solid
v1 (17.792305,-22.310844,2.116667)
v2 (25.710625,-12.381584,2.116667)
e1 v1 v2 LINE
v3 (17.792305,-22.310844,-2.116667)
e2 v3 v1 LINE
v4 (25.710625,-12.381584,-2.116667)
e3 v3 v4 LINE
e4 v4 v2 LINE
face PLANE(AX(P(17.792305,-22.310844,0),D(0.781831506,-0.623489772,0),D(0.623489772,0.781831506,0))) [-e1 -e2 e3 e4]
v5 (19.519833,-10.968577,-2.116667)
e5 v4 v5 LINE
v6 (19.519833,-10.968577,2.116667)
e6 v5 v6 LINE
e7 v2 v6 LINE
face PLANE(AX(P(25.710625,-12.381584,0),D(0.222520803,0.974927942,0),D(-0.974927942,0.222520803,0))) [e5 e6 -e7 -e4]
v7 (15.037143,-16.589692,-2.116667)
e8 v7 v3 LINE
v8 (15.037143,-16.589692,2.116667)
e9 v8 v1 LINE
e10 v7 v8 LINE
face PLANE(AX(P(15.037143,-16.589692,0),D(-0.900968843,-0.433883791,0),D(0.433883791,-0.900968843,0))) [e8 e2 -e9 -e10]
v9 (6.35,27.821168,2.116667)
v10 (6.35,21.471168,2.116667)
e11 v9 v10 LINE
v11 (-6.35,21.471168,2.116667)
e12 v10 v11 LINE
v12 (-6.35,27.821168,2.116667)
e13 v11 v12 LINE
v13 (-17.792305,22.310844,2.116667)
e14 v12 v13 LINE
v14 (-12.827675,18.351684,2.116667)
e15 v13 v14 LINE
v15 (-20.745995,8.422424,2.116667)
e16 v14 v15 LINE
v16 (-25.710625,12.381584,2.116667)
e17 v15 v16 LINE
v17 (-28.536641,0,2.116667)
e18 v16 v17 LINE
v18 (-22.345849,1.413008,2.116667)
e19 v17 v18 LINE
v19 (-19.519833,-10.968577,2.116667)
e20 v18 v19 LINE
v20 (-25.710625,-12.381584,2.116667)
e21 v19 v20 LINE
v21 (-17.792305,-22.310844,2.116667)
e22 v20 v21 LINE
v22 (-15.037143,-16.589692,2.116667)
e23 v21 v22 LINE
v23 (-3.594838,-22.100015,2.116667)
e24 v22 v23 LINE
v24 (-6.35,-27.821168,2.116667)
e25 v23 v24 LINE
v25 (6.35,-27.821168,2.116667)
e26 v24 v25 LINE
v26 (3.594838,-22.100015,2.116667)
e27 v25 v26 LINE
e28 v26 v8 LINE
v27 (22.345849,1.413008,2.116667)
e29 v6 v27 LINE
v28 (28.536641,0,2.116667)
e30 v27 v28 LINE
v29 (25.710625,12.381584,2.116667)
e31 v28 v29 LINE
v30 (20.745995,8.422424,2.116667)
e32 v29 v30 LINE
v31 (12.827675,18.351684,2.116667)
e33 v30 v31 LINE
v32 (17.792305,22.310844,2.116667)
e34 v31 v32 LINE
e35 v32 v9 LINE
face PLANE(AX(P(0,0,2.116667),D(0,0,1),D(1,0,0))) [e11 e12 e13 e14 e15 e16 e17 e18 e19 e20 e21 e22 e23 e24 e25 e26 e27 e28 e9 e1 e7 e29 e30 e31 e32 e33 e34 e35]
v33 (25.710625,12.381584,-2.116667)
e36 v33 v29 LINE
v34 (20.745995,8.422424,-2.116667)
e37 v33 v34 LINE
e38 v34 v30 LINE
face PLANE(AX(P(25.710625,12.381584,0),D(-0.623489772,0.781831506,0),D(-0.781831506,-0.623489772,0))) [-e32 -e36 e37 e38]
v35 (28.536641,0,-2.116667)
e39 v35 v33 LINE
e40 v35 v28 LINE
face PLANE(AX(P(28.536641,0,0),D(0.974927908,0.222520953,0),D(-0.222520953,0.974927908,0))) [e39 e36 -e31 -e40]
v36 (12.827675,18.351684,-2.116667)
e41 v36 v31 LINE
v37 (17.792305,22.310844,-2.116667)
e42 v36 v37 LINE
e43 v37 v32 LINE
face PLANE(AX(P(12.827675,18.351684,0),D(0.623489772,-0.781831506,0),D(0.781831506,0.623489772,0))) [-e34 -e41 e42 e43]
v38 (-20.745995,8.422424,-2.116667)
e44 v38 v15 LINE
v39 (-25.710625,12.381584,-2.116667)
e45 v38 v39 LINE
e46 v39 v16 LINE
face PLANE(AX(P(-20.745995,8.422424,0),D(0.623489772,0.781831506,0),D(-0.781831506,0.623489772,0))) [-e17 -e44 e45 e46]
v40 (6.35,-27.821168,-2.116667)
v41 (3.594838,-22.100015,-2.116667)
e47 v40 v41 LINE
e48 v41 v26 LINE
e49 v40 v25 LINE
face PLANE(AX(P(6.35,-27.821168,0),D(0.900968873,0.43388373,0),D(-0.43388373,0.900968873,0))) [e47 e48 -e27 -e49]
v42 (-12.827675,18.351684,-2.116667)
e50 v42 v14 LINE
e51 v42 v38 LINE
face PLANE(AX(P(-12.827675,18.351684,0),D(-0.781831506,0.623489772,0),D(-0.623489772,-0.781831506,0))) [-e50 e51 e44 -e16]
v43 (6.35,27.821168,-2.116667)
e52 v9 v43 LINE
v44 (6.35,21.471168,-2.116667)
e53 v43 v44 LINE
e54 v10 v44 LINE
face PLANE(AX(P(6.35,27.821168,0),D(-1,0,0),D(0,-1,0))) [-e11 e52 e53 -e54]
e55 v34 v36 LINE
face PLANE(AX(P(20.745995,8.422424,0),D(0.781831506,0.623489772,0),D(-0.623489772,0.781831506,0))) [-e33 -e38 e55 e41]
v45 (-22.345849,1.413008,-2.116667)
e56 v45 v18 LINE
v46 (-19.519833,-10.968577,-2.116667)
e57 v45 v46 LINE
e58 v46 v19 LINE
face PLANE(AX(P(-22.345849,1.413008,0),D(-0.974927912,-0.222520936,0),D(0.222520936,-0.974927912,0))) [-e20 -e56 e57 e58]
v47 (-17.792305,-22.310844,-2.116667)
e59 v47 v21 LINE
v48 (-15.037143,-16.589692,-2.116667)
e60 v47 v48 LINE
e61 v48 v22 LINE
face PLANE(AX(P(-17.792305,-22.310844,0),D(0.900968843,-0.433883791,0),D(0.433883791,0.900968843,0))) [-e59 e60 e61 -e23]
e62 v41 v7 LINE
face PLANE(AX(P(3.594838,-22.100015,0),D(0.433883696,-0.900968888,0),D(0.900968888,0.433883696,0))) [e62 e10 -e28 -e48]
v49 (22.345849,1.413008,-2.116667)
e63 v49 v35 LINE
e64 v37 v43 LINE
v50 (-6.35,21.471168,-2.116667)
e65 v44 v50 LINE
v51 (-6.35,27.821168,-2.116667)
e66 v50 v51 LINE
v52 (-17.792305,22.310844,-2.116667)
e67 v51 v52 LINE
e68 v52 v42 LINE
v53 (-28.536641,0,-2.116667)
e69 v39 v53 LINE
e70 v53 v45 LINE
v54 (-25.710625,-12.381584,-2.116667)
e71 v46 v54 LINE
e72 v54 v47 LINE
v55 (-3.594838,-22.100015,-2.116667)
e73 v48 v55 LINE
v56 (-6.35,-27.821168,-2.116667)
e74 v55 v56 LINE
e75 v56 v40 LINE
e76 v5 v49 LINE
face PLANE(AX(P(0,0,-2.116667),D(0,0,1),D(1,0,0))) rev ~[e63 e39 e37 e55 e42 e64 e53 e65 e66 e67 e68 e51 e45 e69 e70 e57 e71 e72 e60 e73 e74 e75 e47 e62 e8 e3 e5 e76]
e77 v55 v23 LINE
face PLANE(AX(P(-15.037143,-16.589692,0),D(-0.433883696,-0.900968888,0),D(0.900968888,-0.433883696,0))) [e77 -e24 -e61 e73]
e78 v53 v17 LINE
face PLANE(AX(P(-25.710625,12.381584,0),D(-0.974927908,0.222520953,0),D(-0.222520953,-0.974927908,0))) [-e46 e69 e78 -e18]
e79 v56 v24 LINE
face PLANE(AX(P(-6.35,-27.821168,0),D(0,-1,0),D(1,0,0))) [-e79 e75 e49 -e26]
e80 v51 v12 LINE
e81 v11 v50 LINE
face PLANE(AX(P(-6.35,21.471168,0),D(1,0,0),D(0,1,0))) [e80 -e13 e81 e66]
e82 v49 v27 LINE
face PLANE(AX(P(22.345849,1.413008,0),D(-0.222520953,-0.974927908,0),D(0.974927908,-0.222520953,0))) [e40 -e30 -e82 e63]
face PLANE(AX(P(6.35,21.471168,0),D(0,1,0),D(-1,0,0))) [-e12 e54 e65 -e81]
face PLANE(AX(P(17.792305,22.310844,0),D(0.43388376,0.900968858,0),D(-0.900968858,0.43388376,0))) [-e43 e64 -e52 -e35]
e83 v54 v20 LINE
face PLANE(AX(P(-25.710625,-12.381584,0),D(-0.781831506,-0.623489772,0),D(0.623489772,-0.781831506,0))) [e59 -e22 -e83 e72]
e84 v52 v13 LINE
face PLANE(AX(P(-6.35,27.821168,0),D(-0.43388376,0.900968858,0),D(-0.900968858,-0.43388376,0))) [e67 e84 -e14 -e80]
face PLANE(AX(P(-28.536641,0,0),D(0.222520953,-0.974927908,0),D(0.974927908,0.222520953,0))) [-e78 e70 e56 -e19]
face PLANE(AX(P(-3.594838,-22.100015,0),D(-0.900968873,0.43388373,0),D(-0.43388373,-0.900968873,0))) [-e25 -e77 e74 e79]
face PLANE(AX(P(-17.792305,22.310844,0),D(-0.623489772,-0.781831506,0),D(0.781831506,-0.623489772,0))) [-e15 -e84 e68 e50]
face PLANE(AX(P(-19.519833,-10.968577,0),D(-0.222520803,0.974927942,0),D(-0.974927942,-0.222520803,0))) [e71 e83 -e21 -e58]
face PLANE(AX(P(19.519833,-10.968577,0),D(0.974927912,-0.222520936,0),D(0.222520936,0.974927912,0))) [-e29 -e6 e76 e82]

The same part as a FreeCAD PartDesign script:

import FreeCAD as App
import Part
import Sketcher
from FreeCAD import Vector
Q = App.Units.Quantity


def add_polygon(sketch, points):
    """Adds a closed chain of lines whose ends are joined by coincident constraints."""
    first, n = sketch.GeometryCount, len(points)
    for a, b in zip(points, points[1:] + points[:1]):
        sketch.addGeometry(Part.LineSegment(App.Vector(*a, 0), App.Vector(*b, 0)), False)
    for i in range(n):
        sketch.addConstraint(Sketcher.Constraint("Coincident", first + i, 2, first + (i + 1) % n, 1))

doc = App.newDocument("Part")
body = doc.addObject("PartDesign::Body", "Body")

# Sketch on XY plane
sketch1 = doc.addObject("Sketcher::SketchObject", "Sketch")
body.addObject(sketch1)
sketch1.AttachmentSupport = (doc.XY_Plane, [""])
sketch1.MapMode = "FlatFace"
add_polygon(sketch1, [(-6.35, 21.471168), (-6.35, 27.821168), (-17.792305, 22.310844), (-12.827675, 18.351684), (-20.745995, 8.422424), (-25.710625, 12.381584), (-28.536641, 0), (-22.345849, 1.413008), (-19.519833, -10.968577), (-25.710625, -12.381584), (-17.792305, -22.310844), (-15.037143, -16.589692), (-3.594838, -22.100015), (-6.35, -27.821168), (6.35, -27.821168), (3.594838, -22.100015), (15.037143, -16.589692), (17.792305, -22.310844), (25.710625, -12.381584), (19.519833, -10.968577), (22.345849, 1.413008), (28.536641, 0), (25.710625, 12.381584), (20.745995, 8.422424), (12.827675, 18.351684), (17.792305, 22.310844), (6.35, 27.821168), (6.35, 21.471168)])  # lines 0-27
sketch1.addConstraint(Sketcher.Constraint("Vertical", 0))
sketch1.addConstraint(Sketcher.Constraint("Horizontal", 13))
sketch1.addConstraint(Sketcher.Constraint("Vertical", 26))
sketch1.addConstraint(Sketcher.Constraint("Horizontal", 27))
sketch1.addConstraint(Sketcher.Constraint("Symmetric", 0, 2, 13, 2, -1, 1))
sketch1.addConstraint(Sketcher.Constraint("Symmetric", 1, 2, 16, 2, -1, 1))
sketch1.addConstraint(Sketcher.Constraint("Symmetric", 4, 2, 17, 2, -1, 1))
sketch1.addConstraint(Sketcher.Constraint("Symmetric", 5, 2, 20, 2, -1, 1))
sketch1.addConstraint(Sketcher.Constraint("Symmetric", 8, 2, 21, 2, -1, 1))
sketch1.addConstraint(Sketcher.Constraint("Symmetric", 9, 2, 24, 2, -1, 1))
sketch1.addConstraint(Sketcher.Constraint("Symmetric", 12, 2, 25, 2, -1, 1))
sketch1.addConstraint(Sketcher.Constraint("Symmetric", 11, 2, 14, 2, -2))
sketch1.addConstraint(Sketcher.Constraint("Symmetric", 10, 2, 15, 2, -2))
sketch1.addConstraint(Sketcher.Constraint("Symmetric", 9, 2, 16, 2, -2))
sketch1.addConstraint(Sketcher.Constraint("Symmetric", 8, 2, 17, 2, -2))
sketch1.addConstraint(Sketcher.Constraint("Symmetric", 7, 2, 18, 2, -2))
sketch1.addConstraint(Sketcher.Constraint("Symmetric", 6, 2, 19, 2, -2))
sketch1.addConstraint(Sketcher.Constraint("Symmetric", 3, 2, 22, 2, -2))
sketch1.addConstraint(Sketcher.Constraint("Symmetric", 2, 2, 23, 2, -2))
sketch1.addConstraint(Sketcher.Constraint("PointOnObject", 5, 2, -1))
sketch1.addConstraint(Sketcher.Constraint("Perpendicular", 2, 3))
sketch1.addConstraint(Sketcher.Constraint("Perpendicular", 3, 4))
sketch1.addConstraint(Sketcher.Constraint("Perpendicular", 6, 7))
sketch1.addConstraint(Sketcher.Constraint("Perpendicular", 7, 8))
sketch1.addConstraint(Sketcher.Constraint("Perpendicular", 10, 11))
sketch1.addConstraint(Sketcher.Constraint("Perpendicular", 11, 12))
sketch1.addConstraint(Sketcher.Constraint("Perpendicular", 1, 14))
sketch1.addConstraint(Sketcher.Constraint("Perpendicular", 14, 15))
sketch1.addConstraint(Sketcher.Constraint("Perpendicular", 4, 17))
sketch1.addConstraint(Sketcher.Constraint("Perpendicular", 5, 18))
sketch1.addConstraint(Sketcher.Constraint("Equal", 1, 3))
sketch1.addConstraint(Sketcher.Constraint("Equal", 3, 5))
sketch1.addConstraint(Sketcher.Constraint("Equal", 4, 6))
sketch1.addConstraint(Sketcher.Constraint("Equal", 8, 10))
sketch1.addConstraint(Sketcher.Constraint("DistanceX", 13, 1, 13, 2, Q("0.5 in")))
sketch1.addConstraint(Sketcher.Constraint("Distance", 1, Q("0.5 in")))
sketch1.addConstraint(Sketcher.Constraint("DistanceY", 0, 1, 0, 2, Q("0.25 in")))
sketch1.addConstraint(Sketcher.Constraint("Distance", 2, Q("0.25 in")))
sketch1.addConstraint(Sketcher.Constraint("DistanceY", 4, 2, 2, 2, 5.9701))
sketch1.addConstraint(Sketcher.Constraint("DistanceY", 7, 2, 3, 2, 19.391001))
sketch1.addConstraint(Sketcher.Constraint("DistanceY", 10, 2, 6, 2, 18.0027))
pad1 = doc.addObject("PartDesign::Pad", "Pad")
body.addObject(pad1)
pad1.Profile = sketch1
pad1.Length = 4.233334
pad1.Midplane = True

doc.recompute()
